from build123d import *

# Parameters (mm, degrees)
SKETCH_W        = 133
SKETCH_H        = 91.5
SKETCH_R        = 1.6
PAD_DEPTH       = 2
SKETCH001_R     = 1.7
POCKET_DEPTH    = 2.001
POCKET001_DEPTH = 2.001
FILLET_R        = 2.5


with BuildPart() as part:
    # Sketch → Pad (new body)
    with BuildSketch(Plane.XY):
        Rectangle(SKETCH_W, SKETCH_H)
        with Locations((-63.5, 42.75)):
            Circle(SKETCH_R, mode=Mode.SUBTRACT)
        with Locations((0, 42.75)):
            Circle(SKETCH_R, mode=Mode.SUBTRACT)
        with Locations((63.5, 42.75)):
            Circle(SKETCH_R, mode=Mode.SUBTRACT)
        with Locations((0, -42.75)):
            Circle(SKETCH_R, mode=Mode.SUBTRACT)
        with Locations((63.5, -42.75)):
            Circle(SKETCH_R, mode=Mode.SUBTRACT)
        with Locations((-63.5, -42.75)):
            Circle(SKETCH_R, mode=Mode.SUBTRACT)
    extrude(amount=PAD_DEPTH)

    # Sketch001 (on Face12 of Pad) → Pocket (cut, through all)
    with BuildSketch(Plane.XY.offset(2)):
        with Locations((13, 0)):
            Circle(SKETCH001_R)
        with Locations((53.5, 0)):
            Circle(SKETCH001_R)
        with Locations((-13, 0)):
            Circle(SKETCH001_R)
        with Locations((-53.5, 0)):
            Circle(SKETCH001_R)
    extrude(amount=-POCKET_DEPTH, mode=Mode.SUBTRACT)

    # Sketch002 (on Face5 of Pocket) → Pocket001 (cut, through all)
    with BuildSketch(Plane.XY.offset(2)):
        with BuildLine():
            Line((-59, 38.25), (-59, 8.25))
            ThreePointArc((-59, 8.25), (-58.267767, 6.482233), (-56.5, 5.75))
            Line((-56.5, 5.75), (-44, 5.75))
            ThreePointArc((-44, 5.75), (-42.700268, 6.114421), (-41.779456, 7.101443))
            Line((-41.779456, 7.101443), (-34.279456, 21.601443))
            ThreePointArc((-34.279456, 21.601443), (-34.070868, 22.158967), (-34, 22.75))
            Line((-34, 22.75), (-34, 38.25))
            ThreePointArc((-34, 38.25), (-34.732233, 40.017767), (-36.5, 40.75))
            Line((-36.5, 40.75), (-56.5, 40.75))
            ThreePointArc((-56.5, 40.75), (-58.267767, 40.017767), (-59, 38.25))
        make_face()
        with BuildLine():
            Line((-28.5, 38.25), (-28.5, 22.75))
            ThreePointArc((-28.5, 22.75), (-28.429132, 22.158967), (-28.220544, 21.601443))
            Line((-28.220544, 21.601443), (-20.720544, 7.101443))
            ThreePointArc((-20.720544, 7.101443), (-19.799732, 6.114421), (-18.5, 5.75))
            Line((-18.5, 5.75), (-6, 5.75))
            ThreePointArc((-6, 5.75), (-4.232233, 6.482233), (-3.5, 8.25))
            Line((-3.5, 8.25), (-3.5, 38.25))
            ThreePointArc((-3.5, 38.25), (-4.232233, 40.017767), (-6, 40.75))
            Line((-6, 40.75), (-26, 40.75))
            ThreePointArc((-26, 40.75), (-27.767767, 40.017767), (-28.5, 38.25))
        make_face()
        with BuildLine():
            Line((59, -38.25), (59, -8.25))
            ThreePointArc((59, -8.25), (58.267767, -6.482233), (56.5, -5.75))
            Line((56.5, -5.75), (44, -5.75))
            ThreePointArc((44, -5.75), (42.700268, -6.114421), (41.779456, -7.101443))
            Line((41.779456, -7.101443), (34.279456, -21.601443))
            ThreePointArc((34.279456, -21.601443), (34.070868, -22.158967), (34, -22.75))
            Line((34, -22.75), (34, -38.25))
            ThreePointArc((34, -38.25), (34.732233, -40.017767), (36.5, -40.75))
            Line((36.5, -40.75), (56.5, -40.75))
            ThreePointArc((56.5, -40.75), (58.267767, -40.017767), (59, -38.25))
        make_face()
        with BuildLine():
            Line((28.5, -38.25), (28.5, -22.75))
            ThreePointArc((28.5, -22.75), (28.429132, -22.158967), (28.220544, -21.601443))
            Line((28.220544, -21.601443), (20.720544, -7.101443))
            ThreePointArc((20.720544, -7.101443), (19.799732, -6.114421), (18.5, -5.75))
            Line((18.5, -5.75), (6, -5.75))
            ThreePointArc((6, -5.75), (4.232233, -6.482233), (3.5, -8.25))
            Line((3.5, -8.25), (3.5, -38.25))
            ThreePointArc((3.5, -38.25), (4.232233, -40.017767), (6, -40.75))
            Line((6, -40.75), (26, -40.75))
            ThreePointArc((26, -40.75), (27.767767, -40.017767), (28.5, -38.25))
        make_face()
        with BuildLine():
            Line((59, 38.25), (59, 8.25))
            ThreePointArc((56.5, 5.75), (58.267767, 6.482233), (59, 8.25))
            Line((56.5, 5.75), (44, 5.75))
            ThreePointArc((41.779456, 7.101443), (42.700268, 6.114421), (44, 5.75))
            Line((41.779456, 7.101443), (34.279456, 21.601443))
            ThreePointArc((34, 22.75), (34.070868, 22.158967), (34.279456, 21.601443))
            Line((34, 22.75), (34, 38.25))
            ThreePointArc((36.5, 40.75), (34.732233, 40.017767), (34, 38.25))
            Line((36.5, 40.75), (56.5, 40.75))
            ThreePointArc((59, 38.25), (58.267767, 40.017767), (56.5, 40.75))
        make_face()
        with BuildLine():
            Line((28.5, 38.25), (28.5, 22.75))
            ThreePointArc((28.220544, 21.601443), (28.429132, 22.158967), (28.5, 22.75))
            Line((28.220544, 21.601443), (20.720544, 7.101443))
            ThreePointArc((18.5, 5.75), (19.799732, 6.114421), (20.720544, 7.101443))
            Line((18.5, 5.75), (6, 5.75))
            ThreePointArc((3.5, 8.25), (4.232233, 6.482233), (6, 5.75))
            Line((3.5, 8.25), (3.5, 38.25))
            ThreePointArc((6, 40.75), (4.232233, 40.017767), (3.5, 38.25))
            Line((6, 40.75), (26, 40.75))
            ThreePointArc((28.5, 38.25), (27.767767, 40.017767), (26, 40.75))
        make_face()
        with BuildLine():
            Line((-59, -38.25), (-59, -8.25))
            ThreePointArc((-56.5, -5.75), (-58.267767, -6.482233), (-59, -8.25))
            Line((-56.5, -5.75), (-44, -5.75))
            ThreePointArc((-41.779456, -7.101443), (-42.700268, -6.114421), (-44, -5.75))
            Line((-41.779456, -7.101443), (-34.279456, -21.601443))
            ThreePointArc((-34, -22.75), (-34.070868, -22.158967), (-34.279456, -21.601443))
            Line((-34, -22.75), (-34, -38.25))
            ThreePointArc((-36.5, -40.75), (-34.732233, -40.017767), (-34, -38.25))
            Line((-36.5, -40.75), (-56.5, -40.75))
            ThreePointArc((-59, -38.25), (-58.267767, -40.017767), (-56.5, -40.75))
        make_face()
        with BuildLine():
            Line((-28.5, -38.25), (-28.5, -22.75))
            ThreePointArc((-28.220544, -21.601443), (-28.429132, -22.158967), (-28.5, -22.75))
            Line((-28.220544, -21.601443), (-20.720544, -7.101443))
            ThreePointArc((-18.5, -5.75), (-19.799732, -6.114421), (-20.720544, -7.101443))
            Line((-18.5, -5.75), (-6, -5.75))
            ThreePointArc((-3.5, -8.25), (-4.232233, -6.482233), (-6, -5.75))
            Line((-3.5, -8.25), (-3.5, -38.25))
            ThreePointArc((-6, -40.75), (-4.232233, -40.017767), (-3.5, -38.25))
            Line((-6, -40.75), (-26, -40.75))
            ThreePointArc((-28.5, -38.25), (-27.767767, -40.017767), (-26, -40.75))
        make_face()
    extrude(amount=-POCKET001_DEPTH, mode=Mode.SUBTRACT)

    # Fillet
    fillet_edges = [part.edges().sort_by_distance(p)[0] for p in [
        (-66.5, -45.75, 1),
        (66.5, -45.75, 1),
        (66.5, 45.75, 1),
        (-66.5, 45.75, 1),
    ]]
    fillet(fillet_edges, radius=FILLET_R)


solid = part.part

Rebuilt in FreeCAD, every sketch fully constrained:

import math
import FreeCAD as App
import Part
import Sketcher
Q = App.Units.Quantity


def edges_at(feature, points):
    """Names of the edges that pass closest to the given points."""
    edges = feature.Shape.Edges
    near = lambda p: min(range(len(edges)), key=lambda i: edges[i].distToShape(Part.Vertex(*p))[0])
    return sorted({f"Edge{near(p) + 1}" for p in points})


def add_polygon(sketch, points):
    """Adds a closed chain of lines whose ends are joined by coincident constraints."""
    first, n = sketch.GeometryCount, len(points)
    for a, b in zip(points, points[1:] + points[:1]):
        sketch.addGeometry(Part.LineSegment(App.Vector(*a, 0), App.Vector(*b, 0)), False)
    for i in range(n):
        sketch.addConstraint(Sketcher.Constraint("Coincident", first + i, 2, first + (i + 1) % n, 1))

doc = App.newDocument("Part")
body = doc.addObject("PartDesign::Body", "Body")

sketch1 = body.newObject("Sketcher::SketchObject", "Sketch")
sketch1.AttachmentSupport = (doc.getObject("XY_Plane"), [""])
sketch1.MapMode = "FlatFace"
add_polygon(sketch1, [(-66.5, 45.8), (-66.5, -45.8), (66.5, -45.8), (66.5, 45.8)])
sketch1.addGeometry(Part.Circle(App.Vector(-63.5, -42.8, 0), App.Vector(0, 0, 1), 1.6), False)
sketch1.addGeometry(Part.Circle(App.Vector(0, -42.8, 0), App.Vector(0, 0, 1), 1.6), False)
sketch1.addGeometry(Part.Circle(App.Vector(63.5, -42.8, 0), App.Vector(0, 0, 1), 1.6), False)
sketch1.addGeometry(Part.Circle(App.Vector(-63.5, 42.8, 0), App.Vector(0, 0, 1), 1.6), False)
sketch1.addGeometry(Part.Circle(App.Vector(0, 42.8, 0), App.Vector(0, 0, 1), 1.6), False)
sketch1.addGeometry(Part.Circle(App.Vector(63.5, 42.8, 0), App.Vector(0, 0, 1), 1.6), False)
sketch1.addConstraint(Sketcher.Constraint("Vertical", 0))
sketch1.addConstraint(Sketcher.Constraint("Horizontal", 1))
sketch1.addConstraint(Sketcher.Constraint("Vertical", 2))
sketch1.addConstraint(Sketcher.Constraint("Horizontal", 3))
sketch1.addConstraint(Sketcher.Constraint("Equal", 4, 5))
sketch1.addConstraint(Sketcher.Constraint("Equal", 5, 6))
sketch1.addConstraint(Sketcher.Constraint("Equal", 6, 7))
sketch1.addConstraint(Sketcher.Constraint("Equal", 7, 8))
sketch1.addConstraint(Sketcher.Constraint("Equal", 8, 9))
sketch1.addConstraint(Sketcher.Constraint("Symmetric", 6, 3, 7, 3, -1, 1))
sketch1.addConstraint(Sketcher.Constraint("Symmetric", 5, 3, 8, 3, -1, 1))
sketch1.addConstraint(Sketcher.Constraint("Symmetric", 4, 3, 9, 3, -1, 1))
sketch1.addConstraint(Sketcher.Constraint("Symmetric", 0, 2, 2, 2, -1, 1))
sketch1.addConstraint(Sketcher.Constraint("Symmetric", 4, 3, 6, 3, -2))
sketch1.addConstraint(Sketcher.Constraint("PointOnObject", 5, 3, -2))
sketch1.addConstraint(Sketcher.Constraint("Horizontal", 4, 3, 5, 3))
sketch1.addConstraint(Sketcher.Constraint("Diameter", 4, Q("3.2 mm")))
sketch1.addConstraint(Sketcher.Constraint("DistanceX", 1, 1, 1, 2, Q("133 mm")))
sketch1.addConstraint(Sketcher.Constraint("DistanceY", 0, 2, 0, 1, Q("91.5 mm")))
sketch1.addConstraint(Sketcher.Constraint("DistanceX", 4, 3, 6, 3, Q("127 mm")))
sketch1.addConstraint(Sketcher.Constraint("DistanceY", 0, 2, 4, 3, Q("3 mm")))
pad1 = body.newObject("PartDesign::Pad", "Pad")
pad1.Profile = sketch1
pad1.Length = 2

sketch2 = body.newObject("Sketcher::SketchObject", "Sketch001")
sketch2.AttachmentSupport = (doc.getObject("XY_Plane"), [""])
sketch2.MapMode = "FlatFace"
sketch2.AttachmentOffset = App.Placement(App.Vector(0, 0, 2), App.Rotation())
sketch2.addGeometry(Part.Circle(App.Vector(13, 0, 0), App.Vector(0, 0, 1), 1.7), False)
sketch2.addGeometry(Part.Circle(App.Vector(53.5, 0, 0), App.Vector(0, 0, 1), 1.7), False)
sketch2.addGeometry(Part.Circle(App.Vector(-13, 0, 0), App.Vector(0, 0, 1), 1.7), False)
sketch2.addGeometry(Part.Circle(App.Vector(-53.5, 0, 0), App.Vector(0, 0, 1), 1.7), False)
sketch2.addConstraint(Sketcher.Constraint("Equal", 0, 1))
sketch2.addConstraint(Sketcher.Constraint("Equal", 1, 2))
sketch2.addConstraint(Sketcher.Constraint("Equal", 2, 3))
sketch2.addConstraint(Sketcher.Constraint("Symmetric", 0, 3, 2, 3, -1, 1))
sketch2.addConstraint(Sketcher.Constraint("Symmetric", 1, 3, 3, 3, -1, 1))
sketch2.addConstraint(Sketcher.Constraint("PointOnObject", 0, 3, -1))
sketch2.addConstraint(Sketcher.Constraint("PointOnObject", 1, 3, -1))
sketch2.addConstraint(Sketcher.Constraint("Diameter", 0, Q("3.4 mm")))
sketch2.addConstraint(Sketcher.Constraint("DistanceX", -1, 1, 0, 3, Q("13 mm")))
sketch2.addConstraint(Sketcher.Constraint("DistanceX", 3, 3, 1, 3, Q("107 mm")))
pocket1 = body.newObject("PartDesign::Pocket", "Pocket")
pocket1.Profile = sketch2
pocket1.Type = "ThroughAll"

sketch3 = body.newObject("Sketcher::SketchObject", "Sketch002")
sketch3.AttachmentSupport = (doc.getObject("XY_Plane"), [""])
sketch3.MapMode = "FlatFace"
sketch3.AttachmentOffset = App.Placement(App.Vector(0, 0, 2), App.Rotation())
sketch3.addGeometry(Part.LineSegment(App.Vector(-59, 38.2, 0), App.Vector(-59, 8.2, 0)), False)
sketch3.addGeometry(Part.ArcOfCircle(Part.Circle(App.Vector(-56.5, 8.2, 0), App.Vector(0, 0, 1), 2.5), math.radians(180), math.radians(270)), False)
sketch3.addGeometry(Part.LineSegment(App.Vector(-56.5, 5.8, 0), App.Vector(-44, 5.8, 0)), False)
sketch3.addGeometry(Part.ArcOfCircle(Part.Circle(App.Vector(-44, 8.2, 0), App.Vector(0, 0, 1), 2.5), math.radians(-90), math.radians(-27)), False)
sketch3.addGeometry(Part.LineSegment(App.Vector(-41.8, 7.1, 0), App.Vector(-34.3, 21.6, 0)), False)
sketch3.addGeometry(Part.ArcOfCircle(Part.Circle(App.Vector(-36.5, 22.7, 0), App.Vector(0, 0, 1), 2.5), math.radians(-27), math.radians(0)), False)
sketch3.addGeometry(Part.LineSegment(App.Vector(-34, 22.8, 0), App.Vector(-34, 38.2, 0)), False)
sketch3.addGeometry(Part.ArcOfCircle(Part.Circle(App.Vector(-36.5, 38.3, 0), App.Vector(0, 0, 1), 2.5), math.radians(0), math.radians(90)), False)
sketch3.addGeometry(Part.LineSegment(App.Vector(-36.5, 40.8, 0), App.Vector(-56.5, 40.8, 0)), False)
sketch3.addGeometry(Part.ArcOfCircle(Part.Circle(App.Vector(-56.5, 38.3, 0), App.Vector(0, 0, 1), 2.5), math.radians(90), math.radians(180)), False)
sketch3.addGeometry(Part.LineSegment(App.Vector(-28.5, 38.2, 0), App.Vector(-28.5, 22.8, 0)), False)
sketch3.addGeometry(Part.ArcOfCircle(Part.Circle(App.Vector(-26, 22.7, 0), App.Vector(0, 0, 1), 2.5), math.radians(180), math.radians(207)), False)
sketch3.addGeometry(Part.LineSegment(App.Vector(-28.2, 21.6, 0), App.Vector(-20.7, 7.1, 0)), False)
sketch3.addGeometry(Part.ArcOfCircle(Part.Circle(App.Vector(-18.5, 8.2, 0), App.Vector(0, 0, 1), 2.5), math.radians(-153), math.radians(-90)), False)
sketch3.addGeometry(Part.LineSegment(App.Vector(-18.5, 5.8, 0), App.Vector(-6, 5.8, 0)), False)
sketch3.addGeometry(Part.ArcOfCircle(Part.Circle(App.Vector(-6, 8.2, 0), App.Vector(0, 0, 1), 2.5), math.radians(-90), math.radians(0)), False)
sketch3.addGeometry(Part.LineSegment(App.Vector(-3.5, 8.2, 0), App.Vector(-3.5, 38.2, 0)), False)
sketch3.addGeometry(Part.ArcOfCircle(Part.Circle(App.Vector(-6, 38.3, 0), App.Vector(0, 0, 1), 2.5), math.radians(0), math.radians(90)), False)
sketch3.addGeometry(Part.LineSegment(App.Vector(-6, 40.8, 0), App.Vector(-26, 40.8, 0)), False)
sketch3.addGeometry(Part.ArcOfCircle(Part.Circle(App.Vector(-26, 38.3, 0), App.Vector(0, 0, 1), 2.5), math.radians(90), math.radians(180)), False)
sketch3.addGeometry(Part.LineSegment(App.Vector(59, -38.2, 0), App.Vector(59, -8.2, 0)), False)
sketch3.addGeometry(Part.ArcOfCircle(Part.Circle(App.Vector(56.5, -8.2, 0), App.Vector(0, 0, 1), 2.5), math.radians(0), math.radians(90)), False)
sketch3.addGeometry(Part.LineSegment(App.Vector(56.5, -5.8, 0), App.Vector(44, -5.8, 0)), False)
sketch3.addGeometry(Part.ArcOfCircle(Part.Circle(App.Vector(44, -8.2, 0), App.Vector(0, 0, 1), 2.5), math.radians(90), math.radians(153)), False)
sketch3.addGeometry(Part.LineSegment(App.Vector(41.8, -7.1, 0), App.Vector(34.3, -21.6, 0)), False)
sketch3.addGeometry(Part.ArcOfCircle(Part.Circle(App.Vector(36.5, -22.7, 0), App.Vector(0, 0, 1), 2.5), math.radians(153), math.radians(180)), False)
sketch3.addGeometry(Part.LineSegment(App.Vector(34, -22.8, 0), App.Vector(34, -38.2, 0)), False)
sketch3.addGeometry(Part.ArcOfCircle(Part.Circle(App.Vector(36.5, -38.3, 0), App.Vector(0, 0, 1), 2.5), math.radians(180), math.radians(270)), False)
sketch3.addGeometry(Part.LineSegment(App.Vector(36.5, -40.8, 0), App.Vector(56.5, -40.8, 0)), False)
sketch3.addGeometry(Part.ArcOfCircle(Part.Circle(App.Vector(56.5, -38.3, 0), App.Vector(0, 0, 1), 2.5), math.radians(-90), math.radians(0)), False)
sketch3.addGeometry(Part.LineSegment(App.Vector(28.5, -38.2, 0), App.Vector(28.5, -22.8, 0)), False)
sketch3.addGeometry(Part.ArcOfCircle(Part.Circle(App.Vector(26, -22.7, 0), App.Vector(0, 0, 1), 2.5), math.radians(0), math.radians(27)), False)
sketch3.addGeometry(Part.LineSegment(App.Vector(28.2, -21.6, 0), App.Vector(20.7, -7.1, 0)), False)
sketch3.addGeometry(Part.ArcOfCircle(Part.Circle(App.Vector(18.5, -8.2, 0), App.Vector(0, 0, 1), 2.5), math.radians(27), math.radians(90)), False)
sketch3.addGeometry(Part.LineSegment(App.Vector(18.5, -5.8, 0), App.Vector(6, -5.8, 0)), False)
sketch3.addGeometry(Part.ArcOfCircle(Part.Circle(App.Vector(6, -8.2, 0), App.Vector(0, 0, 1), 2.5), math.radians(90), math.radians(180)), False)
sketch3.addGeometry(Part.LineSegment(App.Vector(3.5, -8.2, 0), App.Vector(3.5, -38.2, 0)), False)
sketch3.addGeometry(Part.ArcOfCircle(Part.Circle(App.Vector(6, -38.3, 0), App.Vector(0, 0, 1), 2.5), math.radians(180), math.radians(270)), False)
sketch3.addGeometry(Part.LineSegment(App.Vector(6, -40.8, 0), App.Vector(26, -40.8, 0)), False)
sketch3.addGeometry(Part.ArcOfCircle(Part.Circle(App.Vector(26, -38.3, 0), App.Vector(0, 0, 1), 2.5), math.radians(-90), math.radians(0)), False)
sketch3.addGeometry(Part.LineSegment(App.Vector(59, 8.2, 0), App.Vector(59, 38.2, 0)), False)
sketch3.addGeometry(Part.ArcOfCircle(Part.Circle(App.Vector(56.5, 38.3, 0), App.Vector(0, 0, 1), 2.5), math.radians(0), math.radians(90)), False)
sketch3.addGeometry(Part.LineSegment(App.Vector(56.5, 40.8, 0), App.Vector(36.5, 40.8, 0)), False)
sketch3.addGeometry(Part.ArcOfCircle(Part.Circle(App.Vector(36.5, 38.3, 0), App.Vector(0, 0, 1), 2.5), math.radians(90), math.radians(180)), False)
sketch3.addGeometry(Part.LineSegment(App.Vector(34, 38.2, 0), App.Vector(34, 22.8, 0)), False)
sketch3.addGeometry(Part.ArcOfCircle(Part.Circle(App.Vector(36.5, 22.7, 0), App.Vector(0, 0, 1), 2.5), math.radians(180), math.radians(207)), False)
sketch3.addGeometry(Part.LineSegment(App.Vector(34.3, 21.6, 0), App.Vector(41.8, 7.1, 0)), False)
sketch3.addGeometry(Part.ArcOfCircle(Part.Circle(App.Vector(44, 8.2, 0), App.Vector(0, 0, 1), 2.5), math.radians(-153), math.radians(-90)), False)
sketch3.addGeometry(Part.LineSegment(App.Vector(44, 5.8, 0), App.Vector(56.5, 5.8, 0)), False)
sketch3.addGeometry(Part.ArcOfCircle(Part.Circle(App.Vector(56.5, 8.2, 0), App.Vector(0, 0, 1), 2.5), math.radians(-90), math.radians(0)), False)
sketch3.addGeometry(Part.LineSegment(App.Vector(28.5, 22.8, 0), App.Vector(28.5, 38.2, 0)), False)
sketch3.addGeometry(Part.ArcOfCircle(Part.Circle(App.Vector(26, 38.3, 0), App.Vector(0, 0, 1), 2.5), math.radians(0), math.radians(90)), False)
sketch3.addGeometry(Part.LineSegment(App.Vector(26, 40.8, 0), App.Vector(6, 40.8, 0)), False)
sketch3.addGeometry(Part.ArcOfCircle(Part.Circle(App.Vector(6, 38.3, 0), App.Vector(0, 0, 1), 2.5), math.radians(90), math.radians(180)), False)
sketch3.addGeometry(Part.LineSegment(App.Vector(3.5, 38.2, 0), App.Vector(3.5, 8.2, 0)), False)
sketch3.addGeometry(Part.ArcOfCircle(Part.Circle(App.Vector(6, 8.2, 0), App.Vector(0, 0, 1), 2.5), math.radians(180), math.radians(270)), False)
sketch3.addGeometry(Part.LineSegment(App.Vector(6, 5.8, 0), App.Vector(18.5, 5.8, 0)), False)
sketch3.addGeometry(Part.ArcOfCircle(Part.Circle(App.Vector(18.5, 8.2, 0), App.Vector(0, 0, 1), 2.5), math.radians(-90), math.radians(-27)), False)
sketch3.addGeometry(Part.LineSegment(App.Vector(20.7, 7.1, 0), App.Vector(28.2, 21.6, 0)), False)
sketch3.addGeometry(Part.ArcOfCircle(Part.Circle(App.Vector(26, 22.7, 0), App.Vector(0, 0, 1), 2.5), math.radians(-27), math.radians(0)), False)
sketch3.addGeometry(Part.LineSegment(App.Vector(-59, -8.2, 0), App.Vector(-59, -38.2, 0)), False)
sketch3.addGeometry(Part.ArcOfCircle(Part.Circle(App.Vector(-56.5, -38.3, 0), App.Vector(0, 0, 1), 2.5), math.radians(180), math.radians(270)), False)
sketch3.addGeometry(Part.LineSegment(App.Vector(-56.5, -40.8, 0), App.Vector(-36.5, -40.8, 0)), False)
sketch3.addGeometry(Part.ArcOfCircle(Part.Circle(App.Vector(-36.5, -38.3, 0), App.Vector(0, 0, 1), 2.5), math.radians(-90), math.radians(0)), False)
sketch3.addGeometry(Part.LineSegment(App.Vector(-34, -38.2, 0), App.Vector(-34, -22.8, 0)), False)
sketch3.addGeometry(Part.ArcOfCircle(Part.Circle(App.Vector(-36.5, -22.7, 0), App.Vector(0, 0, 1), 2.5), math.radians(0), math.radians(27)), False)
sketch3.addGeometry(Part.LineSegment(App.Vector(-34.3, -21.6, 0), App.Vector(-41.8, -7.1, 0)), False)
sketch3.addGeometry(Part.ArcOfCircle(Part.Circle(App.Vector(-44, -8.2, 0), App.Vector(0, 0, 1), 2.5), math.radians(27), math.radians(90)), False)
sketch3.addGeometry(Part.LineSegment(App.Vector(-44, -5.8, 0), App.Vector(-56.5, -5.8, 0)), False)
sketch3.addGeometry(Part.ArcOfCircle(Part.Circle(App.Vector(-56.5, -8.2, 0), App.Vector(0, 0, 1), 2.5), math.radians(90), math.radians(180)), False)
sketch3.addGeometry(Part.LineSegment(App.Vector(-28.5, -22.8, 0), App.Vector(-28.5, -38.2, 0)), False)
sketch3.addGeometry(Part.ArcOfCircle(Part.Circle(App.Vector(-26, -38.3, 0), App.Vector(0, 0, 1), 2.5), math.radians(180), math.radians(270)), False)
sketch3.addGeometry(Part.LineSegment(App.Vector(-26, -40.8, 0), App.Vector(-6, -40.8, 0)), False)
sketch3.addGeometry(Part.ArcOfCircle(Part.Circle(App.Vector(-6, -38.3, 0), App.Vector(0, 0, 1), 2.5), math.radians(-90), math.radians(0)), False)
sketch3.addGeometry(Part.LineSegment(App.Vector(-3.5, -38.2, 0), App.Vector(-3.5, -8.2, 0)), False)
sketch3.addGeometry(Part.ArcOfCircle(Part.Circle(App.Vector(-6, -8.2, 0), App.Vector(0, 0, 1), 2.5), math.radians(0), math.radians(90)), False)
sketch3.addGeometry(Part.LineSegment(App.Vector(-6, -5.8, 0), App.Vector(-18.5, -5.8, 0)), False)
sketch3.addGeometry(Part.ArcOfCircle(Part.Circle(App.Vector(-18.5, -8.2, 0), App.Vector(0, 0, 1), 2.5), math.radians(90), math.radians(153)), False)
sketch3.addGeometry(Part.LineSegment(App.Vector(-20.7, -7.1, 0), App.Vector(-28.2, -21.6, 0)), False)
sketch3.addGeometry(Part.ArcOfCircle(Part.Circle(App.Vector(-26, -22.7, 0), App.Vector(0, 0, 1), 2.5), math.radians(153), math.radians(180)), False)
sketch3.addConstraint(Sketcher.Constraint("Tangent", 0, 2, 1, 1))
sketch3.addConstraint(Sketcher.Constraint("Tangent", 1, 2, 2, 1))
sketch3.addConstraint(Sketcher.Constraint("Tangent", 2, 2, 3, 1))
sketch3.addConstraint(Sketcher.Constraint("Tangent", 3, 2, 4, 1))
sketch3.addConstraint(Sketcher.Constraint("Coincident", 4, 2, 5, 1))
sketch3.addConstraint(Sketcher.Constraint("Tangent", 5, 2, 6, 1))
sketch3.addConstraint(Sketcher.Constraint("Tangent", 6, 2, 7, 1))
sketch3.addConstraint(Sketcher.Constraint("Tangent", 7, 2, 8, 1))
sketch3.addConstraint(Sketcher.Constraint("Tangent", 8, 2, 9, 1))
sketch3.addConstraint(Sketcher.Constraint("Tangent", 9, 2, 0, 1))
sketch3.addConstraint(Sketcher.Constraint("Tangent", 10, 2, 11, 1))
sketch3.addConstraint(Sketcher.Constraint("Coincident", 11, 2, 12, 1))
sketch3.addConstraint(Sketcher.Constraint("Tangent", 12, 2, 13, 1))
sketch3.addConstraint(Sketcher.Constraint("Tangent", 13, 2, 14, 1))
sketch3.addConstraint(Sketcher.Constraint("Tangent", 14, 2, 15, 1))
sketch3.addConstraint(Sketcher.Constraint("Tangent", 15, 2, 16, 1))
sketch3.addConstraint(Sketcher.Constraint("Tangent", 16, 2, 17, 1))
sketch3.addConstraint(Sketcher.Constraint("Tangent", 17, 2, 18, 1))
sketch3.addConstraint(Sketcher.Constraint("Tangent", 18, 2, 19, 1))
sketch3.addConstraint(Sketcher.Constraint("Tangent", 19, 2, 10, 1))
sketch3.addConstraint(Sketcher.Constraint("Tangent", 20, 2, 21, 1))
sketch3.addConstraint(Sketcher.Constraint("Tangent", 21, 2, 22, 1))
sketch3.addConstraint(Sketcher.Constraint("Tangent", 22, 2, 23, 1))
sketch3.addConstraint(Sketcher.Constraint("Tangent", 23, 2, 24, 1))
sketch3.addConstraint(Sketcher.Constraint("Coincident", 24, 2, 25, 1))
sketch3.addConstraint(Sketcher.Constraint("Tangent", 25, 2, 26, 1))
sketch3.addConstraint(Sketcher.Constraint("Tangent", 26, 2, 27, 1))
sketch3.addConstraint(Sketcher.Constraint("Tangent", 27, 2, 28, 1))
sketch3.addConstraint(Sketcher.Constraint("Tangent", 28, 2, 29, 1))
sketch3.addConstraint(Sketcher.Constraint("Tangent", 29, 2, 20, 1))
sketch3.addConstraint(Sketcher.Constraint("Tangent", 30, 2, 31, 1))
sketch3.addConstraint(Sketcher.Constraint("Coincident", 31, 2, 32, 1))
sketch3.addConstraint(Sketcher.Constraint("Tangent", 32, 2, 33, 1))
sketch3.addConstraint(Sketcher.Constraint("Tangent", 33, 2, 34, 1))
sketch3.addConstraint(Sketcher.Constraint("Tangent", 34, 2, 35, 1))
sketch3.addConstraint(Sketcher.Constraint("Tangent", 35, 2, 36, 1))
sketch3.addConstraint(Sketcher.Constraint("Tangent", 36, 2, 37, 1))
sketch3.addConstraint(Sketcher.Constraint("Tangent", 37, 2, 38, 1))
sketch3.addConstraint(Sketcher.Constraint("Tangent", 38, 2, 39, 1))
sketch3.addConstraint(Sketcher.Constraint("Tangent", 39, 2, 30, 1))
sketch3.addConstraint(Sketcher.Constraint("Tangent", 40, 2, 41, 1))
sketch3.addConstraint(Sketcher.Constraint("Tangent", 41, 2, 42, 1))
sketch3.addConstraint(Sketcher.Constraint("Tangent", 42, 2, 43, 1))
sketch3.addConstraint(Sketcher.Constraint("Tangent", 43, 2, 44, 1))
sketch3.addConstraint(Sketcher.Constraint("Tangent", 44, 2, 45, 1))
sketch3.addConstraint(Sketcher.Constraint("Coincident", 45, 2, 46, 1))
sketch3.addConstraint(Sketcher.Constraint("Tangent", 46, 2, 47, 1))
sketch3.addConstraint(Sketcher.Constraint("Tangent", 47, 2, 48, 1))
sketch3.addConstraint(Sketcher.Constraint("Tangent", 48, 2, 49, 1))
sketch3.addConstraint(Sketcher.Constraint("Tangent", 49, 2, 40, 1))
sketch3.addConstraint(Sketcher.Constraint("Tangent", 50, 2, 51, 1))
sketch3.addConstraint(Sketcher.Constraint("Tangent", 51, 2, 52, 1))
sketch3.addConstraint(Sketcher.Constraint("Tangent", 52, 2, 53, 1))
sketch3.addConstraint(Sketcher.Constraint("Tangent", 53, 2, 54, 1))
sketch3.addConstraint(Sketcher.Constraint("Tangent", 54, 2, 55, 1))
sketch3.addConstraint(Sketcher.Constraint("Tangent", 55, 2, 56, 1))
sketch3.addConstraint(Sketcher.Constraint("Tangent", 56, 2, 57, 1))
sketch3.addConstraint(Sketcher.Constraint("Tangent", 57, 2, 58, 1))
sketch3.addConstraint(Sketcher.Constraint("Coincident", 58, 2, 59, 1))
sketch3.addConstraint(Sketcher.Constraint("Tangent", 59, 2, 50, 1))
sketch3.addConstraint(Sketcher.Constraint("Tangent", 60, 2, 61, 1))
sketch3.addConstraint(Sketcher.Constraint("Tangent", 61, 2, 62, 1))
sketch3.addConstraint(Sketcher.Constraint("Tangent", 62, 2, 63, 1))
sketch3.addConstraint(Sketcher.Constraint("Tangent", 63, 2, 64, 1))
sketch3.addConstraint(Sketcher.Constraint("Tangent", 64, 2, 65, 1))
sketch3.addConstraint(Sketcher.Constraint("Coincident", 65, 2, 66, 1))
sketch3.addConstraint(Sketcher.Constraint("Tangent", 66, 2, 67, 1))
sketch3.addConstraint(Sketcher.Constraint("Tangent", 67, 2, 68, 1))
sketch3.addConstraint(Sketcher.Constraint("Tangent", 68, 2, 69, 1))
sketch3.addConstraint(Sketcher.Constraint("Tangent", 69, 2, 60, 1))
sketch3.addConstraint(Sketcher.Constraint("Tangent", 70, 2, 71, 1))
sketch3.addConstraint(Sketcher.Constraint("Tangent", 71, 2, 72, 1))
sketch3.addConstraint(Sketcher.Constraint("Tangent", 72, 2, 73, 1))
sketch3.addConstraint(Sketcher.Constraint("Tangent", 73, 2, 74, 1))
sketch3.addConstraint(Sketcher.Constraint("Tangent", 74, 2, 75, 1))
sketch3.addConstraint(Sketcher.Constraint("Tangent", 75, 2, 76, 1))
sketch3.addConstraint(Sketcher.Constraint("Tangent", 76, 2, 77, 1))
sketch3.addConstraint(Sketcher.Constraint("Tangent", 77, 2, 78, 1))
sketch3.addConstraint(Sketcher.Constraint("Coincident", 78, 2, 79, 1))
sketch3.addConstraint(Sketcher.Constraint("Tangent", 79, 2, 70, 1))
sketch3.addConstraint(Sketcher.Constraint("Vertical", 0))
sketch3.addConstraint(Sketcher.Constraint("Horizontal", 2))
sketch3.addConstraint(Sketcher.Constraint("Vertical", 6))
sketch3.addConstraint(Sketcher.Constraint("Horizontal", 8))
sketch3.addConstraint(Sketcher.Constraint("Vertical", 10))
sketch3.addConstraint(Sketcher.Constraint("Horizontal", 14))
sketch3.addConstraint(Sketcher.Constraint("Vertical", 16))
sketch3.addConstraint(Sketcher.Constraint("Horizontal", 18))
sketch3.addConstraint(Sketcher.Constraint("Vertical", 20))
sketch3.addConstraint(Sketcher.Constraint("Horizontal", 22))
sketch3.addConstraint(Sketcher.Constraint("Vertical", 26))
sketch3.addConstraint(Sketcher.Constraint("Horizontal", 28))
sketch3.addConstraint(Sketcher.Constraint("Vertical", 30))
sketch3.addConstraint(Sketcher.Constraint("Horizontal", 34))
sketch3.addConstraint(Sketcher.Constraint("Vertical", 36))
sketch3.addConstraint(Sketcher.Constraint("Horizontal", 38))
sketch3.addConstraint(Sketcher.Constraint("Vertical", 40))
sketch3.addConstraint(Sketcher.Constraint("Horizontal", 42))
sketch3.addConstraint(Sketcher.Constraint("Vertical", 44))
sketch3.addConstraint(Sketcher.Constraint("Horizontal", 48))
sketch3.addConstraint(Sketcher.Constraint("Vertical", 50))
sketch3.addConstraint(Sketcher.Constraint("Horizontal", 52))
sketch3.addConstraint(Sketcher.Constraint("Vertical", 54))
sketch3.addConstraint(Sketcher.Constraint("Horizontal", 56))
sketch3.addConstraint(Sketcher.Constraint("Vertical", 60))
sketch3.addConstraint(Sketcher.Constraint("Horizontal", 62))
sketch3.addConstraint(Sketcher.Constraint("Vertical", 64))
sketch3.addConstraint(Sketcher.Constraint("Horizontal", 68))
sketch3.addConstraint(Sketcher.Constraint("Vertical", 70))
sketch3.addConstraint(Sketcher.Constraint("Horizontal", 72))
sketch3.addConstraint(Sketcher.Constraint("Vertical", 74))
sketch3.addConstraint(Sketcher.Constraint("Horizontal", 76))
sketch3.addConstraint(Sketcher.Constraint("Equal", 1, 3))
sketch3.addConstraint(Sketcher.Constraint("Equal", 3, 7))
sketch3.addConstraint(Sketcher.Constraint("Equal", 7, 9))
sketch3.addConstraint(Sketcher.Constraint("Equal", 5, 11))
sketch3.addConstraint(Sketcher.Constraint("Equal", 9, 13))
sketch3.addConstraint(Sketcher.Constraint("Equal", 13, 15))
sketch3.addConstraint(Sketcher.Constraint("Equal", 15, 17))
sketch3.addConstraint(Sketcher.Constraint("Equal", 17, 19))
sketch3.addConstraint(Sketcher.Constraint("Equal", 19, 21))
sketch3.addConstraint(Sketcher.Constraint("Equal", 21, 23))
sketch3.addConstraint(Sketcher.Constraint("Equal", 11, 25))
sketch3.addConstraint(Sketcher.Constraint("Equal", 23, 27))
sketch3.addConstraint(Sketcher.Constraint("Equal", 27, 29))
sketch3.addConstraint(Sketcher.Constraint("Equal", 25, 31))
sketch3.addConstraint(Sketcher.Constraint("Equal", 29, 33))
sketch3.addConstraint(Sketcher.Constraint("Equal", 33, 35))
sketch3.addConstraint(Sketcher.Constraint("Equal", 35, 37))
sketch3.addConstraint(Sketcher.Constraint("Equal", 37, 39))
sketch3.addConstraint(Sketcher.Constraint("Equal", 39, 41))
sketch3.addConstraint(Sketcher.Constraint("Equal", 41, 43))
sketch3.addConstraint(Sketcher.Constraint("Equal", 31, 45))
sketch3.addConstraint(Sketcher.Constraint("Equal", 43, 47))
sketch3.addConstraint(Sketcher.Constraint("Equal", 47, 49))
sketch3.addConstraint(Sketcher.Constraint("Equal", 49, 51))
sketch3.addConstraint(Sketcher.Constraint("Equal", 51, 53))
sketch3.addConstraint(Sketcher.Constraint("Equal", 53, 55))
sketch3.addConstraint(Sketcher.Constraint("Equal", 55, 57))
sketch3.addConstraint(Sketcher.Constraint("Equal", 45, 59))
sketch3.addConstraint(Sketcher.Constraint("Equal", 57, 61))
sketch3.addConstraint(Sketcher.Constraint("Equal", 61, 63))
sketch3.addConstraint(Sketcher.Constraint("Equal", 59, 65))
sketch3.addConstraint(Sketcher.Constraint("Equal", 63, 67))
sketch3.addConstraint(Sketcher.Constraint("Equal", 67, 69))
sketch3.addConstraint(Sketcher.Constraint("Equal", 69, 71))
sketch3.addConstraint(Sketcher.Constraint("Equal", 71, 73))
sketch3.addConstraint(Sketcher.Constraint("Equal", 73, 75))
sketch3.addConstraint(Sketcher.Constraint("Equal", 75, 77))
sketch3.addConstraint(Sketcher.Constraint("Equal", 65, 79))
sketch3.addConstraint(Sketcher.Constraint("Symmetric", 1, 3, 21, 3, -1, 1))
sketch3.addConstraint(Sketcher.Constraint("Symmetric", 5, 3, 25, 3, -1, 1))
sketch3.addConstraint(Sketcher.Constraint("Symmetric", 11, 3, 31, 3, -1, 1))
sketch3.addConstraint(Sketcher.Constraint("Symmetric", 13, 3, 33, 3, -1, 1))
sketch3.addConstraint(Sketcher.Constraint("Symmetric", 17, 3, 37, 3, -1, 1))
sketch3.addConstraint(Sketcher.Constraint("Symmetric", 41, 3, 61, 3, -1, 1))
sketch3.addConstraint(Sketcher.Constraint("Symmetric", 45, 3, 65, 3, -1, 1))
sketch3.addConstraint(Sketcher.Constraint("Symmetric", 47, 3, 67, 3, -1, 1))
sketch3.addConstraint(Sketcher.Constraint("Symmetric", 51, 3, 71, 3, -1, 1))
sketch3.addConstraint(Sketcher.Constraint("Symmetric", 55, 3, 75, 3, -1, 1))
sketch3.addConstraint(Sketcher.Constraint("Symmetric", 57, 2, 77, 2, -1, 1))
sketch3.addConstraint(Sketcher.Constraint("Symmetric", 9, 3, 41, 3, -2))
sketch3.addConstraint(Sketcher.Constraint("Symmetric", 5, 3, 45, 3, -2))
sketch3.addConstraint(Sketcher.Constraint("Symmetric", 3, 3, 47, 3, -2))
sketch3.addConstraint(Sketcher.Constraint("Symmetric", 19, 3, 51, 3, -2))
sketch3.addConstraint(Sketcher.Constraint("Symmetric", 15, 3, 55, 3, -2))
sketch3.addConstraint(Sketcher.Constraint("Symmetric", 12, 2, 57, 2, -2))
sketch3.addConstraint(Sketcher.Constraint("Parallel", 4, 24))
sketch3.addConstraint(Sketcher.Constraint("Parallel", 32, 46))
sketch3.addConstraint(Sketcher.Constraint("Horizontal", 5, 3, 11, 3))
sketch3.addConstraint(Sketcher.Constraint("Horizontal", 3, 3, 13, 3))
sketch3.addConstraint(Sketcher.Constraint("Horizontal", 9, 3, 17, 3))
sketch3.addConstraint(Sketcher.Constraint("Horizontal", 29, 3, 37, 3))
sketch3.addConstraint(Sketcher.Constraint("Horizontal", 4, 2, 11, 2))
sketch3.addConstraint(Sketcher.Constraint("Horizontal", 24, 2, 31, 2))
sketch3.addConstraint(Sketcher.Constraint("Horizontal", 11, 2, 45, 2))
sketch3.addConstraint(Sketcher.Constraint("Horizontal", 45, 2, 58, 2))
sketch3.addConstraint(Sketcher.Constraint("Horizontal", 31, 2, 65, 2))
sketch3.addConstraint(Sketcher.Constraint("Horizontal", 65, 2, 78, 2))
sketch3.addConstraint(Sketcher.Constraint("Vertical", 24, 2, 45, 2))
sketch3.addConstraint(Sketcher.Constraint("Equal", 2, 14))
sketch3.addConstraint(Sketcher.Constraint("Radius", 1, Q("2.5 mm")))
sketch3.addConstraint(Sketcher.Constraint("DistanceX", 8, 2, 8, 1, Q("20 mm")))
sketch3.addConstraint(Sketcher.Constraint("DistanceY", 0, 2, 0, 1, Q("30 mm")))
sketch3.addConstraint(Sketcher.Constraint("DistanceX", 2, 1, 2, 2, Q("12.5 mm")))
sketch3.addConstraint(Sketcher.Constraint("DistanceY", 6, 1, 6, 2, Q("15.5 mm")))
sketch3.addConstraint(Sketcher.Constraint("DistanceX", 3, 3, -1, 1, Q("43.999999 mm")))
sketch3.addConstraint(Sketcher.Constraint("DistanceX", 15, 3, -1, 1, Q("6 mm")))
sketch3.addConstraint(Sketcher.Constraint("DistanceY", -1, 1, 1, 3, Q("8.25 mm")))
sketch3.addConstraint(Sketcher.Constraint("Radius", 5, Q("2.49998 mm")))
sketch3.addConstraint(Sketcher.Constraint("Distance", 4, Q("16.324828 mm")))
pocket2 = body.newObject("PartDesign::Pocket", "Pocket001")
pocket2.Profile = sketch3
pocket2.Type = "ThroughAll"
doc.recompute()

fillet = body.newObject("PartDesign::Fillet", "Fillet")
fillet.Base = (pocket2, edges_at(pocket2, [
    (-66.5, -45.75, 1),
    (66.5, -45.75, 1),
    (66.5, 45.75, 1),
    (-66.5, 45.75, 1),
]))
fillet.Radius = 2.5

doc.recompute()
